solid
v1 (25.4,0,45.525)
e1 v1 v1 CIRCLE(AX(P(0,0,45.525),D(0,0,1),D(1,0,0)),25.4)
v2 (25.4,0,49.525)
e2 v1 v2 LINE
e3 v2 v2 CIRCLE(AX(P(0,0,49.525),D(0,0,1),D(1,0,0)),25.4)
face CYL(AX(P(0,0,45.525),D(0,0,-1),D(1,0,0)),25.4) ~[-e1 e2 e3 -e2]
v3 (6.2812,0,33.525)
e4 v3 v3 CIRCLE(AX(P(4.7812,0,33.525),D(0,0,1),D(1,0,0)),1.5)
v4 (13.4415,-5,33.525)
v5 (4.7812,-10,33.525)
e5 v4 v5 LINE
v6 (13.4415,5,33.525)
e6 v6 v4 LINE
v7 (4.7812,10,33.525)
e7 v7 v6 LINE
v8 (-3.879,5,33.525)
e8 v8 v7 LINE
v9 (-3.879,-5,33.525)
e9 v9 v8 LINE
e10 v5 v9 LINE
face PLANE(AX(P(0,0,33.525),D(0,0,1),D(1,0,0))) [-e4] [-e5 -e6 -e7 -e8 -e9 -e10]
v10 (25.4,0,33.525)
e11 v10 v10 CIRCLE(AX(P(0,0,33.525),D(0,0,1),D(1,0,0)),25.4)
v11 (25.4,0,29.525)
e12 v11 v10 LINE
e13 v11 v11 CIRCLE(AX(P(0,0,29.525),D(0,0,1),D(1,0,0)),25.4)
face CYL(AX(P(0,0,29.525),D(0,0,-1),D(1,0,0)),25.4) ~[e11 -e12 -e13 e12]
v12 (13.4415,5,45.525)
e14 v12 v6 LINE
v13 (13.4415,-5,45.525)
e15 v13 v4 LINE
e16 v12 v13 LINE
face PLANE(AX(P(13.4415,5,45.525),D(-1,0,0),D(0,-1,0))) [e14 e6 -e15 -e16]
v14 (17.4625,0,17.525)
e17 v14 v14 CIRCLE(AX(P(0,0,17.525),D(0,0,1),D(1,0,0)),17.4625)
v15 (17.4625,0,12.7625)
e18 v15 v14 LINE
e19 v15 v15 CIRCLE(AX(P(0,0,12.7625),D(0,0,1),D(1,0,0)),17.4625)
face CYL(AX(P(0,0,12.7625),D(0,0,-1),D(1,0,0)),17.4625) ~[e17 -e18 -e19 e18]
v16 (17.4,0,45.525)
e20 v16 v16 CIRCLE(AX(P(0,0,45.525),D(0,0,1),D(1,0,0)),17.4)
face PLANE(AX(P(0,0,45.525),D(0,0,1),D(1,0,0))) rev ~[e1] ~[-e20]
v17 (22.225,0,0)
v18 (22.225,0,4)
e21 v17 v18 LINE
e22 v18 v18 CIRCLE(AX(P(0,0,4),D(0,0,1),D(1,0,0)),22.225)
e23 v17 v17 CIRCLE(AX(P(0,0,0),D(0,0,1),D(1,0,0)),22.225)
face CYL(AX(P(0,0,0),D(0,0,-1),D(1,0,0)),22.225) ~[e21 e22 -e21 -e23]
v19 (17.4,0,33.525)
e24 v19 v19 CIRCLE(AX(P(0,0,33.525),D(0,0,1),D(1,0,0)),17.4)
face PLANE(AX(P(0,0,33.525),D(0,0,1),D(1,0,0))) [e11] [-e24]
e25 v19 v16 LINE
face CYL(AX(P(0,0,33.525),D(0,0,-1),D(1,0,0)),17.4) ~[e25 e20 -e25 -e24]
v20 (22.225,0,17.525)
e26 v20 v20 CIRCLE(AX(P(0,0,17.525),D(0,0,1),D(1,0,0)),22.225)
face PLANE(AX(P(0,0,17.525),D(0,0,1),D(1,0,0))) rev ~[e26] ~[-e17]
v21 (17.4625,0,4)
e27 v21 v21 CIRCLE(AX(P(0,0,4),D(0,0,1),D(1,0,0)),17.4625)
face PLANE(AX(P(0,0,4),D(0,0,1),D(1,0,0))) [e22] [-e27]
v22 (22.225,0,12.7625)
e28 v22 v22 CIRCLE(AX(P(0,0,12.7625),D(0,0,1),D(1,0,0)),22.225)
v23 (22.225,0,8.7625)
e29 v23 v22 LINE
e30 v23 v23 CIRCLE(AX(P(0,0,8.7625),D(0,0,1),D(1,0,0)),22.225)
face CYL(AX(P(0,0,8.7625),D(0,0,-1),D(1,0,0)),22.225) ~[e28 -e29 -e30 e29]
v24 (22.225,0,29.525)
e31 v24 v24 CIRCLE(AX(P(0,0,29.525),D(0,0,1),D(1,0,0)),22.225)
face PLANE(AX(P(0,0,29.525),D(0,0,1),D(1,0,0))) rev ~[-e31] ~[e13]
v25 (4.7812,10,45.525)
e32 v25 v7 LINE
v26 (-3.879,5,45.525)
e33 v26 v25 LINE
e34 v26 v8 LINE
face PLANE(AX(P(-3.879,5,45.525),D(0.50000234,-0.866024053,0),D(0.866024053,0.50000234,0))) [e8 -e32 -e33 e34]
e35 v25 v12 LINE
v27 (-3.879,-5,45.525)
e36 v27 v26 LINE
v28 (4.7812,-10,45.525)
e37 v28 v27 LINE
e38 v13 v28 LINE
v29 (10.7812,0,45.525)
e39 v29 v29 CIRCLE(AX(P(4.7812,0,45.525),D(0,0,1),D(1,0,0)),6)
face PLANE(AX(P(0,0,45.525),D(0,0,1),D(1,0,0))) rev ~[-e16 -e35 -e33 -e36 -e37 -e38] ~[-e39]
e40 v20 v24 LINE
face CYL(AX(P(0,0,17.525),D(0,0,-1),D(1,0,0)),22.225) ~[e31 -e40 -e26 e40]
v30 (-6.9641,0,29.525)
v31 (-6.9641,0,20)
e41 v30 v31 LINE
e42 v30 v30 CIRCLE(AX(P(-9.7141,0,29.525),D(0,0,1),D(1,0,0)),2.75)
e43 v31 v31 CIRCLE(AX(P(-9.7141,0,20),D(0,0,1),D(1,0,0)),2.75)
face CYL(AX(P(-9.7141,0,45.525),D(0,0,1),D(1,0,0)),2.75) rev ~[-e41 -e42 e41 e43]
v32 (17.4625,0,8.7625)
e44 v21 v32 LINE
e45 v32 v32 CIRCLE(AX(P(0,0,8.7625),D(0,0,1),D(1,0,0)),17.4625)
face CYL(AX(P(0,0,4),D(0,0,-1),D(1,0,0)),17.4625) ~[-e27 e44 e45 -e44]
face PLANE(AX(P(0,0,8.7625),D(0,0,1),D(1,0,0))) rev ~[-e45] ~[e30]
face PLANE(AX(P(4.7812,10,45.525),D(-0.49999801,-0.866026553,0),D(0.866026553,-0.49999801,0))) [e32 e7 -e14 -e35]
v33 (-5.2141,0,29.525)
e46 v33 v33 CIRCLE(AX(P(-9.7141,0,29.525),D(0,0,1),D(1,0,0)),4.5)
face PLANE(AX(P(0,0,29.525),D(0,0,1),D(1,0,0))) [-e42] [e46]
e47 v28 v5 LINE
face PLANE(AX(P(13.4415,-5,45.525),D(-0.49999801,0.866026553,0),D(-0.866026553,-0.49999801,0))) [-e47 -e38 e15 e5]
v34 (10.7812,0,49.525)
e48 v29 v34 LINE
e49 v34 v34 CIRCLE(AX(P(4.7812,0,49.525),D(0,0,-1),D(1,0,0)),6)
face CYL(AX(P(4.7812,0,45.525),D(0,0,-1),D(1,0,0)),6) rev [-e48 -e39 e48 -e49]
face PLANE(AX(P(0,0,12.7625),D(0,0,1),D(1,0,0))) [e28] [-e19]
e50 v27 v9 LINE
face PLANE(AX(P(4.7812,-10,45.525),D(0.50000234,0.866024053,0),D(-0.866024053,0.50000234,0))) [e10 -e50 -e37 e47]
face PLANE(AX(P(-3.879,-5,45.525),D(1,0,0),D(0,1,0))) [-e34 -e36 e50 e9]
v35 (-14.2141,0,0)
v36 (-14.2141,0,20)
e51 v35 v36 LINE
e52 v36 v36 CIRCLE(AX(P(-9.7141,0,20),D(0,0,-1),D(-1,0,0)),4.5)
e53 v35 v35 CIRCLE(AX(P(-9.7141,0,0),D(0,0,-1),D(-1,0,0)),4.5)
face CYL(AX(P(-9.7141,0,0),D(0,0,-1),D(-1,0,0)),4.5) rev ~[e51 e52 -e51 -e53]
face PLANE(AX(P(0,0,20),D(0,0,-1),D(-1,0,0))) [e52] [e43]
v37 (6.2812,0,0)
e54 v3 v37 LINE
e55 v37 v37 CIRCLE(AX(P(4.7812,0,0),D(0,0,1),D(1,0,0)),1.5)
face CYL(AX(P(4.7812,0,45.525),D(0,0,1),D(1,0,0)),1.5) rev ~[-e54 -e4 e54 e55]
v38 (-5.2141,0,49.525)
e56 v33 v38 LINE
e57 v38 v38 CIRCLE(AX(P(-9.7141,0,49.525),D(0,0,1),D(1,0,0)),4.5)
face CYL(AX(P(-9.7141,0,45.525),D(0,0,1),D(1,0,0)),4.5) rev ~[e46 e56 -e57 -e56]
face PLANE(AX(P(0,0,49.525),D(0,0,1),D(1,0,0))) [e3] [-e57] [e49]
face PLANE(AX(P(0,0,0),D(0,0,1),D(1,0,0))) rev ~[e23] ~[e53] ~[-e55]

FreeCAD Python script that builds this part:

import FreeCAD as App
import Part
import Sketcher

V = App.Vector
Q = App.Units.Quantity


def add_polygon(sketch, points):
    """Adds a closed chain of lines whose ends are joined by coincident constraints."""
    first, n = sketch.GeometryCount, len(points)
    for a, b in zip(points, points[1:] + points[:1]):
        sketch.addGeometry(Part.LineSegment(App.Vector(*a, 0), App.Vector(*b, 0)), False)
    for i in range(n):
        sketch.addConstraint(Sketcher.Constraint("Coincident", first + i, 2, first + (i + 1) % n, 1))

doc = App.newDocument("Part")
body = doc.addObject("PartDesign::Body", "Body")

# Sketch on XY plane
sketch1 = body.newObject("Sketcher::SketchObject", "Sketch")
sketch1.AttachmentSupport = (doc.getObject("XY_Plane"), [""])
sketch1.MapMode = "FlatFace"
sketch1.addGeometry(Part.Circle(V(0, 0, 0), V(0, 0, 1), 22), False)
sketch1.addConstraint([
    Sketcher.Constraint("Coincident", 0, 3, -1, 1),
    Sketcher.Constraint("Diameter", 0, 44.45),
])
pad1 = body.newObject("PartDesign::Pad", "Pad")
pad1.Profile = sketch1
pad1.Length = 4

# Sketch on XY plane
sketch2 = body.newObject("Sketcher::SketchObject", "Sketch001")
sketch2.AttachmentSupport = (doc.getObject("XY_Plane"), [""])
sketch2.MapMode = "FlatFace"
sketch2.AttachmentOffset = App.Placement(V(0, 0, 4), App.Rotation())
sketch2.addGeometry(Part.Circle(V(0, 0, 0), V(0, 0, 1), 17), False)
sketch2.addConstraint([
    Sketcher.Constraint("Coincident", 0, 3, -1, 1),
    Sketcher.Constraint("Diameter", 0, 34.925),
])
pad2 = body.newObject("PartDesign::Pad", "Pad001")
pad2.Profile = sketch2
pad2.Length = 4.7625

# Sketch on XY plane
sketch3 = body.newObject("Sketcher::SketchObject", "Sketch002")
sketch3.AttachmentSupport = (doc.getObject("XY_Plane"), [""])
sketch3.MapMode = "FlatFace"
sketch3.AttachmentOffset = App.Placement(V(0, 0, 8.7625), App.Rotation())
sketch3.addGeometry(Part.Circle(V(0, 0, 0), V(0, 0, 1), 22), False)
sketch3.addConstraint([
    Sketcher.Constraint("Coincident", 0, 3, -1, 1),
    Sketcher.Constraint("Diameter", 0, 44.45),
])
pad3 = body.newObject("PartDesign::Pad", "Pad002")
pad3.Profile = sketch3
pad3.Length = 4

# Sketch on XY plane
sketch4 = body.newObject("Sketcher::SketchObject", "Sketch003")
sketch4.AttachmentSupport = (doc.getObject("XY_Plane"), [""])
sketch4.MapMode = "FlatFace"
sketch4.AttachmentOffset = App.Placement(V(0, 0, 12.7625), App.Rotation())
sketch4.addGeometry(Part.Circle(V(0, 0, 0), V(0, 0, 1), 17), False)
sketch4.addConstraint([
    Sketcher.Constraint("Coincident", 0, 3, -1, 1),
    Sketcher.Constraint("Diameter", 0, 34.925),
])
pad4 = body.newObject("PartDesign::Pad", "Pad003")
pad4.Profile = sketch4
pad4.Length = 4.7625

# Sketch on XY plane
sketch5 = body.newObject("Sketcher::SketchObject", "Sketch004")
sketch5.AttachmentSupport = (doc.getObject("XY_Plane"), [""])
sketch5.MapMode = "FlatFace"
sketch5.AttachmentOffset = App.Placement(V(0, 0, 17.525), App.Rotation())
sketch5.addGeometry(Part.Circle(V(0, 0, 0), V(0, 0, 1), 22), False)
sketch5.addConstraint([
    Sketcher.Constraint("Coincident", 0, 3, -1, 1),
    Sketcher.Constraint("Diameter", 0, 44.45),
])
pad5 = body.newObject("PartDesign::Pad", "Pad004")
pad5.Profile = sketch5
pad5.Length = 12

# Sketch on XY plane
sketch6 = body.newObject("Sketcher::SketchObject", "Sketch005")
sketch6.AttachmentSupport = (doc.getObject("XY_Plane"), [""])
sketch6.MapMode = "FlatFace"
sketch6.AttachmentOffset = App.Placement(V(0, 0, 29.525), App.Rotation())
sketch6.addGeometry(Part.Circle(V(0, 0, 0), V(0, 0, 1), 25), False)
sketch6.addConstraint([
    Sketcher.Constraint("Coincident", 0, 3, -1, 1),
    Sketcher.Constraint("Diameter", 0, 50.8),
])
pad6 = body.newObject("PartDesign::Pad", "Pad005")
pad6.Profile = sketch6
pad6.Length = 4

# Sketch on XY plane
sketch7 = body.newObject("Sketcher::SketchObject", "Sketch006")
sketch7.AttachmentSupport = (doc.getObject("XY_Plane"), [""])
sketch7.MapMode = "FlatFace"
sketch7.AttachmentOffset = App.Placement(V(0, 0, 33.525), App.Rotation())
sketch7.addGeometry(Part.Circle(V(0, 0, 0), V(0, 0, 1), 17), False)
sketch7.addConstraint([
    Sketcher.Constraint("Coincident", 0, 3, -1, 1),
    Sketcher.Constraint("Diameter", 0, 34.8),
])
pad7 = body.newObject("PartDesign::Pad", "Pad006")
pad7.Profile = sketch7
pad7.Length = 12

# Sketch on XY plane
sketch8 = body.newObject("Sketcher::SketchObject", "Sketch007")
sketch8.AttachmentSupport = (doc.getObject("XY_Plane"), [""])
sketch8.MapMode = "FlatFace"
sketch8.AttachmentOffset = App.Placement(V(0, 0, 45.525), App.Rotation())
sketch8.addGeometry(Part.Circle(V(0, 0, 0), V(0, 0, 1), 25), False)
sketch8.addConstraint([
    Sketcher.Constraint("Coincident", 0, 3, -1, 1),
    Sketcher.Constraint("Diameter", 0, 50.8),
])
pad8 = body.newObject("PartDesign::Pad", "Pad007")
pad8.Profile = sketch8
pad8.Length = 4

# Sketch on XY plane
sketch9 = body.newObject("Sketcher::SketchObject", "Sketch008")
sketch9.AttachmentSupport = (doc.getObject("XY_Plane"), [""])
sketch9.MapMode = "FlatFace"
sketch9.AttachmentOffset = App.Placement(V(0, 0, 45.525), App.Rotation())
sketch9.addGeometry(Part.Circle(V(-9.7, 0, 0), V(0, 0, 1), 4.5), False)
sketch9.addConstraint([
    Sketcher.Constraint("PointOnObject", 0, 3, -1),
    Sketcher.Constraint("Diameter", 0, 9.0),
    Sketcher.Constraint("DistanceX", 0, 3, -1, 1, 9.714),
])
pocket1 = body.newObject("PartDesign::Pocket", "Pocket")
pocket1.Profile = sketch9
pocket1.Type = "TwoLengths"
pocket1.Length = 4
pocket1.Length2 = 16
pocket1.Reversed = True

# Sketch on XY plane
sketch10 = body.newObject("Sketcher::SketchObject", "Sketch009")
sketch10.AttachmentSupport = (doc.getObject("XY_Plane"), [""])
sketch10.MapMode = "FlatFace"
sketch10.AttachmentOffset = App.Placement(V(0, 0, 45.525), App.Rotation())
sketch10.addGeometry(Part.Circle(V(-9.7, 0, 0), V(0, 0, 1), 2.8), False)
sketch10.addConstraint([
    Sketcher.Constraint("PointOnObject", 0, 3, -1),
    Sketcher.Constraint("Diameter", 0, 5.5),
    Sketcher.Constraint("DistanceX", 0, 3, -1, 1, 9.714),
])
pocket2 = body.newObject("PartDesign::Pocket", "Pocket001")
pocket2.Profile = sketch10
pocket2.Type = "ThroughAll"

# Sketch on XY plane
sketch11 = body.newObject("Sketcher::SketchObject", "Sketch010")
sketch11.AttachmentSupport = (doc.getObject("XY_Plane"), [""])
sketch11.MapMode = "FlatFace"
sketch11.AttachmentOffset = App.Placement(V(0, 0, 45.525), App.Rotation())
add_polygon(sketch11, [(13, -5), (13, 5), (5, 10), (-4, 5), (-4, -5), (5, -10)])  # lines 0-5
sketch11.addConstraint([
    Sketcher.Constraint("Vertical", 0),
    Sketcher.Constraint("Vertical", 3),
    Sketcher.Constraint("Symmetric", 1, 2, 4, 2, -1),
    Sketcher.Constraint("Parallel", 1, 4),
    Sketcher.Constraint("Parallel", 2, 5),
    Sketcher.Constraint("Horizontal", 0, 2, 2, 2),
    Sketcher.Constraint("Horizontal", 3, 2, 5, 2),
    Sketcher.Constraint("DistanceY", 4, 2, 1, 2, 20.0),
    Sketcher.Constraint("DistanceY", 0, 1, 0, 2, 10.0),
    Sketcher.Constraint("Angle", 1, Q("150.0001 deg")),
    Sketcher.Constraint("DistanceX", 2, 2, -1, 1, 3.879),
])
pocket3 = body.newObject("PartDesign::Pocket", "Pocket002")
pocket3.Profile = sketch11
pocket3.Length = 12

# Sketch on XY plane
sketch12 = body.newObject("Sketcher::SketchObject", "Sketch011")
sketch12.AttachmentSupport = (doc.getObject("XY_Plane"), [""])
sketch12.MapMode = "FlatFace"
sketch12.AttachmentOffset = App.Placement(V(0, 0, 45.525), App.Rotation())
sketch12.addGeometry(Part.Circle(V(5, 0, 0), V(0, 0, 1), 6), False)
sketch12.addConstraint([
    Sketcher.Constraint("PointOnObject", 0, 3, -1),
    Sketcher.Constraint("Diameter", 0, 12.0),
    Sketcher.Constraint("DistanceX", -1, 1, 0, 3, 4.7812),
])
pocket4 = body.newObject("PartDesign::Pocket", "Pocket003")
pocket4.Profile = sketch12
pocket4.Type = "ThroughAll"
pocket4.Reversed = True

# Sketch on XY plane
sketch13 = body.newObject("Sketcher::SketchObject", "Sketch012")
sketch13.AttachmentSupport = (doc.getObject("XY_Plane"), [""])
sketch13.MapMode = "FlatFace"
sketch13.AttachmentOffset = App.Placement(V(0, 0, 45.525), App.Rotation())
sketch13.addGeometry(Part.Circle(V(4.8, 0, 0), V(0, 0, 1), 1.5), False)
sketch13.addConstraint([
    Sketcher.Constraint("PointOnObject", 0, 3, -1),
    Sketcher.Constraint("Diameter", 0, 3.0),
    Sketcher.Constraint("DistanceX", -1, 1, 0, 3, 4.7812),
])
pocket5 = body.newObject("PartDesign::Pocket", "Pocket004")
pocket5.Profile = sketch13
pocket5.Type = "ThroughAll"

# Sketch on XY plane
sketch14 = body.newObject("Sketcher::SketchObject", "Sketch013")
sketch14.AttachmentSupport = (doc.getObject("XY_Plane"), [""])
sketch14.MapMode = "FlatFace"
sketch14.addGeometry(Part.Circle(V(-9.7, 0, 0), V(0, 0, 1), 4.5), False)
sketch14.addConstraint([
    Sketcher.Constraint("PointOnObject", 0, 3, -1),
    Sketcher.Constraint("Diameter", 0, 9.0),
    Sketcher.Constraint("DistanceX", 0, 3, -1, 1, 9.714),
])
pocket6 = body.newObject("PartDesign::Pocket", "Pocket005")
pocket6.Profile = sketch14
pocket6.Length = 20
pocket6.Reversed = True

doc.recompute()
